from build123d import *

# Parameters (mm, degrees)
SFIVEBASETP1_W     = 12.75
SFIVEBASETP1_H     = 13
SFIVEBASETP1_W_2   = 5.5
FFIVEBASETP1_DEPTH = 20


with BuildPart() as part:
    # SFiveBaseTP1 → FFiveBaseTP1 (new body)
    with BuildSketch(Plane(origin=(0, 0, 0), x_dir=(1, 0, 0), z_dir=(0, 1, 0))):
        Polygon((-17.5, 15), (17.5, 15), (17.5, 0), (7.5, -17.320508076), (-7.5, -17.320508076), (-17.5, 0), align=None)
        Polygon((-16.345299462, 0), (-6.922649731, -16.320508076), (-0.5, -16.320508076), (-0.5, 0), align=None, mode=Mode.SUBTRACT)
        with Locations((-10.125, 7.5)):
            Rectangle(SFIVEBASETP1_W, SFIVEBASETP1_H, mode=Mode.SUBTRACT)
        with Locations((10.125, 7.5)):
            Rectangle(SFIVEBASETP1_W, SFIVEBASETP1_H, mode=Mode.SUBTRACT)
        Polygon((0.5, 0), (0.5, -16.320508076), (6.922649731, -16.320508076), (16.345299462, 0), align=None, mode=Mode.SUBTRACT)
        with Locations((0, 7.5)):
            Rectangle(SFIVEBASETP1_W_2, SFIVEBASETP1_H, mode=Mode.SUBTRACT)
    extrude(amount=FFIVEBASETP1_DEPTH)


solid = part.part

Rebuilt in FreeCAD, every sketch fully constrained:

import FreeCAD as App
import Part
import Sketcher

V = App.Vector
Q = App.Units.Quantity


def add_polygon(sketch, points):
    """Adds a closed chain of lines whose ends are joined by coincident constraints."""
    first, n = sketch.GeometryCount, len(points)
    for a, b in zip(points, points[1:] + points[:1]):
        sketch.addGeometry(Part.LineSegment(App.Vector(*a, 0), App.Vector(*b, 0)), False)
    for i in range(n):
        sketch.addConstraint(Sketcher.Constraint("Coincident", first + i, 2, first + (i + 1) % n, 1))

doc = App.newDocument("Part")
body = doc.addObject("PartDesign::Body", "Body")

# Sketch on XZ plane
sketch1 = doc.addObject("Sketcher::SketchObject", "Sketch")
body.addObject(sketch1)
sketch1.AttachmentSupport = (doc.XZ_Plane, [""])
sketch1.MapMode = "FlatFace"
add_polygon(sketch1, [(17.5, -15), (-17.5, -15), (-17.5, 0), (-7.5, 17.320508), (7.5, 17.320508), (17.5, 0)])  # lines 0-5
add_polygon(sketch1, [(0.5, 0), (16.345299, 0), (6.92265, 16.320508), (0.5, 16.320508)])  # lines 6-9
add_polygon(sketch1, [(-16.345299, 0), (-0.5, 0), (-0.5, 16.320508), (-6.92265, 16.320508)])  # lines 10-13
add_polygon(sketch1, [(3.75, -1), (3.75, -14), (16.5, -14), (16.5, -1)])  # lines 14-17
add_polygon(sketch1, [(-2.75, -1), (-2.75, -14), (2.75, -14), (2.75, -1)])  # lines 18-21
add_polygon(sketch1, [(-16.5, -1), (-16.5, -14), (-3.75, -14), (-3.75, -1)])  # lines 22-25
sketch1.addConstraint([
    Sketcher.Constraint("Horizontal", 0),
    Sketcher.Constraint("Vertical", 1),
    Sketcher.Constraint("Horizontal", 3),
    Sketcher.Constraint("Vertical", 5),
    Sketcher.Constraint("Horizontal", 6),
    Sketcher.Constraint("Horizontal", 8),
    Sketcher.Constraint("Vertical", 9),
    Sketcher.Constraint("Horizontal", 10),
    Sketcher.Constraint("Vertical", 11),
    Sketcher.Constraint("Horizontal", 12),
    Sketcher.Constraint("Vertical", 14),
    Sketcher.Constraint("Horizontal", 15),
    Sketcher.Constraint("Vertical", 16),
    Sketcher.Constraint("Horizontal", 17),
    Sketcher.Constraint("Vertical", 18),
    Sketcher.Constraint("Horizontal", 19),
    Sketcher.Constraint("Vertical", 20),
    Sketcher.Constraint("Horizontal", 21),
    Sketcher.Constraint("Vertical", 22),
    Sketcher.Constraint("Horizontal", 23),
    Sketcher.Constraint("Vertical", 24),
    Sketcher.Constraint("Horizontal", 25),
    Sketcher.Constraint("Symmetric", 1, 2, 4, 2, -1, 1),
    Sketcher.Constraint("Symmetric", 9, 2, 10, 2, -1, 1),
    Sketcher.Constraint("Symmetric", 7, 2, 12, 2, -2),
    Sketcher.Constraint("Symmetric", 6, 2, 13, 2, -2),
    Sketcher.Constraint("Symmetric", 15, 2, 22, 2, -2),
    Sketcher.Constraint("Symmetric", 17, 2, 24, 2, -2),
    Sketcher.Constraint("PointOnObject", 1, 2, -1),
    Sketcher.Constraint("Parallel", 4, 7),
    Sketcher.Constraint("Parallel", 2, 13),
    Sketcher.Constraint("Horizontal", 15, 2, 18, 2),
    Sketcher.Constraint("Horizontal", 17, 2, 20, 2),
    Sketcher.Constraint("Equal", 3, 1),
    Sketcher.Constraint("DistanceX", 0, 2, 0, 1, 35.0),
    Sketcher.Constraint("DistanceX", 3, 1, 3, 2, 15.0),
    Sketcher.Constraint("DistanceY", 14, 2, 14, 1, 13.0),
    Sketcher.Constraint("Angle", 2, Q("60 deg")),
    Sketcher.Constraint("DistanceX", 19, 1, 19, 2, 5.5),
    Sketcher.Constraint("DistanceY", 14, 2, -1, 1, 14.0),
    Sketcher.Constraint("DistanceY", 7, 2, 3, 2, 1.0),
    Sketcher.Constraint("DistanceX", 8, 2, 3, 2, 7.0),
    Sketcher.Constraint("DistanceX", 15, 2, 5, 2, 1.0),
    Sketcher.Constraint("DistanceX", 19, 2, 14, 2, 1.0),
    Sketcher.Constraint("DistanceX", 23, 2, 18, 2, 1.0),
    Sketcher.Constraint("DistanceX", 6, 1, 6, 2, 15.845299),
])
pad1 = doc.addObject("PartDesign::Pad", "Pad")
body.addObject(pad1)
pad1.Profile = sketch1
pad1.Length = 20
pad1.Reversed = True

doc.recompute()
